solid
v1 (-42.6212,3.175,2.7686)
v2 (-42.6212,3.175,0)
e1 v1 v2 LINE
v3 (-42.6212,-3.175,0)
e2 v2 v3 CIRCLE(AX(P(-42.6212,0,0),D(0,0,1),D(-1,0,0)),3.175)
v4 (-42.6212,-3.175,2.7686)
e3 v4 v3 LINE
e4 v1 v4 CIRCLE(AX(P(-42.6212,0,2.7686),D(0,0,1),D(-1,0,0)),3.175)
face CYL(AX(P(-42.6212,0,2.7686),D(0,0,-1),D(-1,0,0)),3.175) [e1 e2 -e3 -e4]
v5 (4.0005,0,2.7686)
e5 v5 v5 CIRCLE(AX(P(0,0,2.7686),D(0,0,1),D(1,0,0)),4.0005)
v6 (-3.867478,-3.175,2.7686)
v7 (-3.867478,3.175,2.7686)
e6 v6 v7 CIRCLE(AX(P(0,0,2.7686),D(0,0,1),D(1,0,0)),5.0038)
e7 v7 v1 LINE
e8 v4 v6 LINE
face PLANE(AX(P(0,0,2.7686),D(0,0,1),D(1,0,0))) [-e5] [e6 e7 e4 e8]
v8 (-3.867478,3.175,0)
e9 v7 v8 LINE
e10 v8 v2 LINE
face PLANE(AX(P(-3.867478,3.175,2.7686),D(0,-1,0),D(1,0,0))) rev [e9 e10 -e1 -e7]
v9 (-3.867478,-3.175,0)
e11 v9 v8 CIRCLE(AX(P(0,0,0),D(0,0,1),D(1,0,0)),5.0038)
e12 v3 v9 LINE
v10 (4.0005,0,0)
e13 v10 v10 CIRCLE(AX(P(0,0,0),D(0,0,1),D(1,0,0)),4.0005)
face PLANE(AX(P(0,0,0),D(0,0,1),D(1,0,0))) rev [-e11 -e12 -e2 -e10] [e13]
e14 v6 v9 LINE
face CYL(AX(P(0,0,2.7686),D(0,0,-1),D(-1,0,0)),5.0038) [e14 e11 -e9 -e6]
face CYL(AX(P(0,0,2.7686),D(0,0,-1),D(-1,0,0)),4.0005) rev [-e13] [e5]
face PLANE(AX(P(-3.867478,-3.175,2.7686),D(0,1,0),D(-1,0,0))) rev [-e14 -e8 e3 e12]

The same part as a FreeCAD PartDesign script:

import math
import FreeCAD as App
import Part
import Sketcher

V = App.Vector
Q = App.Units.Quantity

doc = App.newDocument("Part")
params = doc.addObject("Spreadsheet::Sheet", "Params")
for row, (alias, value) in enumerate([
    ("sketch1_diameter", "0.315 in"),
    ("sketch1_radius", "0.125 in"),
    ("sketch1_radius2", "0.197 in"),
    ("pad1_length", "0.109 in"),
], start=1):
    params.set(f"A{row}", alias)
    params.set(f"B{row}", "=" + value)
    params.setAlias(f"B{row}", alias)

body = doc.addObject("PartDesign::Body", "Body")

sketch1 = body.newObject("Sketcher::SketchObject", "Sketch")
sketch1.AttachmentSupport = (doc.getObject("XY_Plane"), [""])
sketch1.MapMode = "FlatFace"
sketch1.addGeometry(Part.LineSegment(V(-3.9, 3.2, 0), V(-42.6, 3.2, 0)), False)
sketch1.addGeometry(Part.ArcOfCircle(Part.Circle(V(-42.6, 0, 0), V(0, 0, 1), 3.2), math.radians(90), math.radians(270)), False)
sketch1.addGeometry(Part.LineSegment(V(-42.6, -3.2, 0), V(-3.9, -3.2, 0)), False)
sketch1.addGeometry(Part.ArcOfCircle(Part.Circle(V(0, 0, 0), V(0, 0, 1), 5), math.radians(-141), math.radians(141)), False)
sketch1.addGeometry(Part.Circle(V(0, 0, 0), V(0, 0, 1), 4), False)
sketch1.addConstraint(Sketcher.Constraint("Tangent", 0, 2, 1, 1))
sketch1.addConstraint(Sketcher.Constraint("Tangent", 1, 2, 2, 1))
sketch1.addConstraint(Sketcher.Constraint("Coincident", 2, 2, 3, 1))
sketch1.addConstraint(Sketcher.Constraint("Coincident", 3, 2, 0, 1))
sketch1.addConstraint(Sketcher.Constraint("Horizontal", 0))
sketch1.addConstraint(Sketcher.Constraint("Horizontal", 2))
sketch1.addConstraint(Sketcher.Constraint("Coincident", 3, 3, -1, 1))
sketch1.addConstraint(Sketcher.Constraint("Coincident", 4, 3, -1, 1))
sketch1.addConstraint(Sketcher.Constraint("PointOnObject", 1, 3, -1))
sketch1.addConstraint(Sketcher.Constraint("Diameter", 4, Q("0.315 in")))
sketch1.addConstraint(Sketcher.Constraint("Radius", 1, Q("0.125 in")))
sketch1.addConstraint(Sketcher.Constraint("Radius", 3, Q("0.197 in")))
sketch1.addConstraint(Sketcher.Constraint("DistanceX", 1, 3, -1, 1, Q("1.678 in")))
sketch1.setExpression("Constraints[9]", "Params.sketch1_diameter")
sketch1.setExpression("Constraints[10]", "Params.sketch1_radius")
sketch1.setExpression("Constraints[11]", "Params.sketch1_radius2")
pad1 = body.newObject("PartDesign::Pad", "Pad")
pad1.Profile = sketch1
pad1.setExpression("Length", "Params.pad1_length")

doc.recompute()
